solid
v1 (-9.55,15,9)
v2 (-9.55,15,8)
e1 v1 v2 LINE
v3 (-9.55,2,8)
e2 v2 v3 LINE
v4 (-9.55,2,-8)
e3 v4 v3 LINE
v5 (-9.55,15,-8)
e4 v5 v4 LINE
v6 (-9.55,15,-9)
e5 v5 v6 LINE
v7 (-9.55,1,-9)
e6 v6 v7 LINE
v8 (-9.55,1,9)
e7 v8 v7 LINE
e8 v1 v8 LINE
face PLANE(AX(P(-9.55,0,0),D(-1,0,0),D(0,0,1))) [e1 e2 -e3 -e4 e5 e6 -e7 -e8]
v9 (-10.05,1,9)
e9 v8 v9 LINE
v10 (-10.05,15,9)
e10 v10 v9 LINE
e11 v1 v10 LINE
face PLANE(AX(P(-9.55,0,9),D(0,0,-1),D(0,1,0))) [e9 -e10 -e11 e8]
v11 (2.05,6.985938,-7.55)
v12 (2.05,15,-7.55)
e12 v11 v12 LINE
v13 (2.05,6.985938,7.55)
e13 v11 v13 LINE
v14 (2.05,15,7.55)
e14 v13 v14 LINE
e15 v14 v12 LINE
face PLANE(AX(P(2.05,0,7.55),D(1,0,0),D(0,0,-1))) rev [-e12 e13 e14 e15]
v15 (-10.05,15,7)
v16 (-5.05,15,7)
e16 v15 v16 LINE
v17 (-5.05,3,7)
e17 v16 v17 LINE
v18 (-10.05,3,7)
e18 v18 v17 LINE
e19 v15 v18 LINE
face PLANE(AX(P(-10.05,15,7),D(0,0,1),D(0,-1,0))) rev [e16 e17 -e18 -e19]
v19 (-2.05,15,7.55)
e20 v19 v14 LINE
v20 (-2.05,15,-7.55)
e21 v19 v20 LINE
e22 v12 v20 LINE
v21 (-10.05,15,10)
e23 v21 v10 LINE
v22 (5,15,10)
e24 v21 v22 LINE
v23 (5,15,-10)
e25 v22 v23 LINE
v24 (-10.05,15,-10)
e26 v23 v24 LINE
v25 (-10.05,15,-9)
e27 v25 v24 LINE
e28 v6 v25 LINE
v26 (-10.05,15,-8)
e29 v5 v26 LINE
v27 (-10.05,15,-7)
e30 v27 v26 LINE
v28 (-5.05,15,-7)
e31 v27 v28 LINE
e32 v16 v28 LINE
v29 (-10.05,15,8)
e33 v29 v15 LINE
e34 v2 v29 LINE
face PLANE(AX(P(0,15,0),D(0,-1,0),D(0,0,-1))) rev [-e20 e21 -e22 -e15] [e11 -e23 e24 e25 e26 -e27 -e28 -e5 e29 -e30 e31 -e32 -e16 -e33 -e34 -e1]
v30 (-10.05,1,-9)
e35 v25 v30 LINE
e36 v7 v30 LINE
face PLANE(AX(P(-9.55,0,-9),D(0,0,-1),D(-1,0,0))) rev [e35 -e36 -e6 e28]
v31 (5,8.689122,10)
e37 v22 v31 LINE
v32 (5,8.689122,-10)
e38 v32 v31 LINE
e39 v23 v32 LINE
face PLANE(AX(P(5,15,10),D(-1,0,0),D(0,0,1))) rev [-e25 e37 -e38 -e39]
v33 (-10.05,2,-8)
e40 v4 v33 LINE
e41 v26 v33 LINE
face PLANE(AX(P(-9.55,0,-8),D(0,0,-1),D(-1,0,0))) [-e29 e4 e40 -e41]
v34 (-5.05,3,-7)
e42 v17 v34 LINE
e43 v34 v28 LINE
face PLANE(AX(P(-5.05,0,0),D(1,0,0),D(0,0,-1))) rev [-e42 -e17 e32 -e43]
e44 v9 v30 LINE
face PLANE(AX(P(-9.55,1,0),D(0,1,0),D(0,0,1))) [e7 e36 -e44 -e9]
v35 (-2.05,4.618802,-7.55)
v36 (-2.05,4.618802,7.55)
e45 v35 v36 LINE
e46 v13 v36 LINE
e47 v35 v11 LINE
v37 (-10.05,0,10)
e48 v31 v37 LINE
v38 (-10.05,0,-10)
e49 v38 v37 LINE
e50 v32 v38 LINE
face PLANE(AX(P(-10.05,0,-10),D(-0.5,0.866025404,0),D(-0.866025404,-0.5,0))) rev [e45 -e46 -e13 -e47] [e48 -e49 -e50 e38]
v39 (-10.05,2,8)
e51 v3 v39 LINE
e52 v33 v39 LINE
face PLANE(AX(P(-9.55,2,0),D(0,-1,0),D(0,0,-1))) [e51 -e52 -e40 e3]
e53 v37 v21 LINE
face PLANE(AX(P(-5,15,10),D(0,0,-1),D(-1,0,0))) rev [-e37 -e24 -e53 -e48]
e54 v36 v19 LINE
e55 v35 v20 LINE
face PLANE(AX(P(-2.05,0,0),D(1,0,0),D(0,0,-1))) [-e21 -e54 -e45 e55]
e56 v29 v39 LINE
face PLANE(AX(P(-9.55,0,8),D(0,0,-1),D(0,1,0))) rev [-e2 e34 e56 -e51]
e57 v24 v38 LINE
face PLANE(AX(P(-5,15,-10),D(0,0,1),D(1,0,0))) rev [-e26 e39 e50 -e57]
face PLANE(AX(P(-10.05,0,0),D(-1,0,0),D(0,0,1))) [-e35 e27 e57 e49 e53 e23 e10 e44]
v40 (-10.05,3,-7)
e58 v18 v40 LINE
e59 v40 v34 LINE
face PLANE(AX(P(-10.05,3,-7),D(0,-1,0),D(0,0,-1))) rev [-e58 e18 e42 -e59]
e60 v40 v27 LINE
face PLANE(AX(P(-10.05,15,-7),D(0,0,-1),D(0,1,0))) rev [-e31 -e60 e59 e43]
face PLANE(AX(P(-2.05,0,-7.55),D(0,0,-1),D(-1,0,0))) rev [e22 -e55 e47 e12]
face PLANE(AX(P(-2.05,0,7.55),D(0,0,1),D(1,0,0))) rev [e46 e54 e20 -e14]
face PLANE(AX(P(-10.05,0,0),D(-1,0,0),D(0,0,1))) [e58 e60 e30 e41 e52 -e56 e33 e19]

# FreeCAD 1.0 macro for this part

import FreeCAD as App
import Part
import Sketcher

V = App.Vector
Q = App.Units.Quantity

doc = App.newDocument("Part")
params = doc.addObject("Spreadsheet::Sheet", "Params")
for row, (alias, value) in enumerate([
    ("sketch1_width", "10 mm"),
    ("sketch1_height", "20 mm"),
    ("pad1_length", "15 mm"),
    ("sketch2_width", "4.1 mm"),
    ("sketch2_height", "15.1 mm"),
    ("sketch3_height", "20 mm"),
    ("sketch3_width", "2.95 mm"),
    ("pocket2_length", "15 mm"),
    ("sketch4_width", "15 mm"),
    ("sketch4_height", "20 mm"),
    ("pad2_length", "3 mm"),
    ("sketch5_width", "15 mm"),
    ("sketch5_width2", "12 mm"),
    ("sketch5_height", "3 mm"),
    ("sketch5_height2", "20 mm"),
    ("pad3_length", "5 mm"),
    ("sketch6_width", "15.05 mm"),
    ("sketch7_width", "13 mm"),
    ("sketch7_width2", "14 mm"),
    ("sketch7_height", "1 mm"),
    ("sketch7_height2", "18 mm"),
    ("pocket4_length", "0.5 mm"),
], start=1):
    params.set(f"A{row}", alias)
    params.set(f"B{row}", "=" + value)
    params.setAlias(f"B{row}", alias)

body = doc.addObject("PartDesign::Body", "Body")

# Sketch on XZ plane
sketch1 = body.newObject("Sketcher::SketchObject", "Sketch")
sketch1.AttachmentSupport = (doc.getObject("XZ_Plane"), [""])
sketch1.MapMode = "FlatFace"
sketch1.addGeometry(Part.LineSegment(V(-5, -10, 0), V(-5, 10, 0)), False)
sketch1.addGeometry(Part.LineSegment(V(-5, 10, 0), V(5, 10, 0)), False)
sketch1.addGeometry(Part.LineSegment(V(5, 10, 0), V(5, -10, 0)), False)
sketch1.addGeometry(Part.LineSegment(V(5, -10, 0), V(-5, -10, 0)), False)
sketch1.addConstraint(Sketcher.Constraint("Coincident", 0, 2, 1, 1))
sketch1.addConstraint(Sketcher.Constraint("Coincident", 1, 2, 2, 1))
sketch1.addConstraint(Sketcher.Constraint("Coincident", 2, 2, 3, 1))
sketch1.addConstraint(Sketcher.Constraint("Coincident", 3, 2, 0, 1))
sketch1.addConstraint(Sketcher.Constraint("Vertical", 0))
sketch1.addConstraint(Sketcher.Constraint("Horizontal", 1))
sketch1.addConstraint(Sketcher.Constraint("Vertical", 2))
sketch1.addConstraint(Sketcher.Constraint("Horizontal", 3))
sketch1.addConstraint(Sketcher.Constraint("Symmetric", 0, 2, 2, 2, -1, 1))
sketch1.addConstraint(Sketcher.Constraint("DistanceX", 1, 1, 1, 2, 10.0))
sketch1.addConstraint(Sketcher.Constraint("DistanceY", 0, 1, 0, 2, 20.0))
sketch1.setExpression("Constraints[9]", "Params.sketch1_width")
sketch1.setExpression("Constraints[10]", "Params.sketch1_height")
pad1 = body.newObject("PartDesign::Pad", "Pad")
pad1.Profile = sketch1
pad1.setExpression("Length", "Params.pad1_length")
pad1.Reversed = True

# Sketch on XZ plane
sketch2 = body.newObject("Sketcher::SketchObject", "Sketch001")
sketch2.AttachmentSupport = (doc.getObject("XZ_Plane"), [""])
sketch2.MapMode = "FlatFace"
sketch2.AttachmentOffset = App.Placement(V(0, 0, -15), App.Rotation())
sketch2.addGeometry(Part.LineSegment(V(-2, -7.5, 0), V(-2, 7.5, 0)), False)
sketch2.addGeometry(Part.LineSegment(V(-2, 7.5, 0), V(2, 7.5, 0)), False)
sketch2.addGeometry(Part.LineSegment(V(2, 7.5, 0), V(2, -7.5, 0)), False)
sketch2.addGeometry(Part.LineSegment(V(2, -7.5, 0), V(-2, -7.5, 0)), False)
sketch2.addConstraint(Sketcher.Constraint("Coincident", 0, 2, 1, 1))
sketch2.addConstraint(Sketcher.Constraint("Coincident", 1, 2, 2, 1))
sketch2.addConstraint(Sketcher.Constraint("Coincident", 2, 2, 3, 1))
sketch2.addConstraint(Sketcher.Constraint("Coincident", 3, 2, 0, 1))
sketch2.addConstraint(Sketcher.Constraint("Vertical", 0))
sketch2.addConstraint(Sketcher.Constraint("Horizontal", 1))
sketch2.addConstraint(Sketcher.Constraint("Vertical", 2))
sketch2.addConstraint(Sketcher.Constraint("Horizontal", 3))
sketch2.addConstraint(Sketcher.Constraint("Symmetric", 0, 2, 2, 2, -1, 1))
sketch2.addConstraint(Sketcher.Constraint("DistanceX", 1, 1, 1, 2, 4.1))
sketch2.addConstraint(Sketcher.Constraint("DistanceY", 0, 1, 0, 2, 15.1))
sketch2.setExpression("Constraints[9]", "Params.sketch2_width")
sketch2.setExpression("Constraints[10]", "Params.sketch2_height")
pocket1 = body.newObject("PartDesign::Pocket", "Pocket")
pocket1.Profile = sketch2
pocket1.Type = "ThroughAll"
pocket1.Reversed = True

# Sketch on XZ plane
sketch3 = body.newObject("Sketcher::SketchObject", "Sketch002")
sketch3.AttachmentSupport = (doc.getObject("XZ_Plane"), [""])
sketch3.MapMode = "FlatFace"
sketch3.AttachmentOffset = App.Placement(V(0, 0, -15), App.Rotation())
sketch3.addGeometry(Part.LineSegment(V(-2, -10, 0), V(-5, -10, 0)), False)
sketch3.addGeometry(Part.LineSegment(V(-5, -10, 0), V(-5, 10, 0)), False)
sketch3.addGeometry(Part.LineSegment(V(-5, 10, 0), V(-2, 10, 0)), False)
sketch3.addGeometry(Part.LineSegment(V(-2, 10, 0), V(-2, -10, 0)), False)
sketch3.addConstraint(Sketcher.Constraint("Coincident", 0, 2, 1, 1))
sketch3.addConstraint(Sketcher.Constraint("Coincident", 1, 2, 2, 1))
sketch3.addConstraint(Sketcher.Constraint("Coincident", 2, 2, 3, 1))
sketch3.addConstraint(Sketcher.Constraint("Coincident", 3, 2, 0, 1))
sketch3.addConstraint(Sketcher.Constraint("Horizontal", 0))
sketch3.addConstraint(Sketcher.Constraint("Vertical", 1))
sketch3.addConstraint(Sketcher.Constraint("Horizontal", 2))
sketch3.addConstraint(Sketcher.Constraint("Vertical", 3))
sketch3.addConstraint(Sketcher.Constraint("DistanceY", 1, 1, 1, 2, 20.0))
sketch3.addConstraint(Sketcher.Constraint("DistanceX", 0, 2, -1, 1, 5.0))
sketch3.addConstraint(Sketcher.Constraint("DistanceY", 0, 2, -1, 1, 10.0))
sketch3.addConstraint(Sketcher.Constraint("DistanceX", 0, 2, 0, 1, 2.95))
sketch3.setExpression("Constraints[8]", "Params.sketch3_height")
sketch3.setExpression("Constraints[11]", "Params.sketch3_width")
pocket2 = body.newObject("PartDesign::Pocket", "Pocket001")
pocket2.Profile = sketch3
pocket2.setExpression("Length", "Params.pocket2_length")
pocket2.Reversed = True

# Sketch on YZ plane
sketch4 = body.newObject("Sketcher::SketchObject", "Sketch003")
sketch4.AttachmentSupport = (doc.getObject("YZ_Plane"), [""])
sketch4.MapMode = "FlatFace"
sketch4.AttachmentOffset = App.Placement(V(0, 0, -2.05), App.Rotation())
sketch4.addGeometry(Part.LineSegment(V(15, -10, 0), V(0, -10, 0)), False)
sketch4.addGeometry(Part.LineSegment(V(0, -10, 0), V(0, 10, 0)), False)
sketch4.addGeometry(Part.LineSegment(V(0, 10, 0), V(15, 10, 0)), False)
sketch4.addGeometry(Part.LineSegment(V(15, 10, 0), V(15, -10, 0)), False)
sketch4.addConstraint(Sketcher.Constraint("Coincident", 0, 2, 1, 1))
sketch4.addConstraint(Sketcher.Constraint("Coincident", 1, 2, 2, 1))
sketch4.addConstraint(Sketcher.Constraint("Coincident", 2, 2, 3, 1))
sketch4.addConstraint(Sketcher.Constraint("Coincident", 3, 2, 0, 1))
sketch4.addConstraint(Sketcher.Constraint("Horizontal", 0))
sketch4.addConstraint(Sketcher.Constraint("Vertical", 1))
sketch4.addConstraint(Sketcher.Constraint("Horizontal", 2))
sketch4.addConstraint(Sketcher.Constraint("Vertical", 3))
sketch4.addConstraint(Sketcher.Constraint("Symmetric", 0, 2, 1, 2, -1, 1))
sketch4.addConstraint(Sketcher.Constraint("DistanceX", 0, 2, 0, 1, 15.0))
sketch4.addConstraint(Sketcher.Constraint("DistanceY", 1, 1, 1, 2, 20.0))
sketch4.setExpression("Constraints[9]", "Params.sketch4_width")
sketch4.setExpression("Constraints[10]", "Params.sketch4_height")
pad2 = body.newObject("PartDesign::Pad", "Pad001")
pad2.Profile = sketch4
pad2.setExpression("Length", "Params.pad2_length")
pad2.Reversed = True

# Sketch on YZ plane
sketch5 = body.newObject("Sketcher::SketchObject", "Sketch004")
sketch5.AttachmentSupport = (doc.getObject("YZ_Plane"), [""])
sketch5.MapMode = "FlatFace"
sketch5.AttachmentOffset = App.Placement(V(0, 0, -5.05), App.Rotation())
sketch5.addGeometry(Part.LineSegment(V(15, -7, 0), V(15, -10, 0)), False)
sketch5.addGeometry(Part.LineSegment(V(15, -10, 0), V(0, -10, 0)), False)
sketch5.addGeometry(Part.LineSegment(V(0, -10, 0), V(0, 10, 0)), False)
sketch5.addGeometry(Part.LineSegment(V(0, 10, 0), V(15, 10, 0)), False)
sketch5.addGeometry(Part.LineSegment(V(15, 10, 0), V(15, 7, 0)), False)
sketch5.addGeometry(Part.LineSegment(V(15, 7, 0), V(3, 7, 0)), False)
sketch5.addGeometry(Part.LineSegment(V(3, 7, 0), V(3, -7, 0)), False)
sketch5.addGeometry(Part.LineSegment(V(3, -7, 0), V(15, -7, 0)), False)
sketch5.addConstraint(Sketcher.Constraint("Coincident", 0, 2, 1, 1))
sketch5.addConstraint(Sketcher.Constraint("Coincident", 1, 2, 2, 1))
sketch5.addConstraint(Sketcher.Constraint("Coincident", 2, 2, 3, 1))
sketch5.addConstraint(Sketcher.Constraint("Coincident", 3, 2, 4, 1))
sketch5.addConstraint(Sketcher.Constraint("Coincident", 4, 2, 5, 1))
sketch5.addConstraint(Sketcher.Constraint("Coincident", 5, 2, 6, 1))
sketch5.addConstraint(Sketcher.Constraint("Coincident", 6, 2, 7, 1))
sketch5.addConstraint(Sketcher.Constraint("Coincident", 7, 2, 0, 1))
sketch5.addConstraint(Sketcher.Constraint("Vertical", 0))
sketch5.addConstraint(Sketcher.Constraint("Horizontal", 1))
sketch5.addConstraint(Sketcher.Constraint("Vertical", 2))
sketch5.addConstraint(Sketcher.Constraint("Horizontal", 3))
sketch5.addConstraint(Sketcher.Constraint("Vertical", 4))
sketch5.addConstraint(Sketcher.Constraint("Horizontal", 5))
sketch5.addConstraint(Sketcher.Constraint("Vertical", 6))
sketch5.addConstraint(Sketcher.Constraint("Horizontal", 7))
sketch5.addConstraint(Sketcher.Constraint("Symmetric", 1, 2, 2, 2, -1, 1))
sketch5.addConstraint(Sketcher.Constraint("Symmetric", 4, 2, 7, 2, -1))
sketch5.addConstraint(Sketcher.Constraint("DistanceX", 1, 2, 1, 1, 15.0))
sketch5.addConstraint(Sketcher.Constraint("DistanceX", 5, 2, 5, 1, 12.0))
sketch5.addConstraint(Sketcher.Constraint("DistanceY", 0, 2, 0, 1, 3.0))
sketch5.addConstraint(Sketcher.Constraint("DistanceY", 2, 1, 2, 2, 20.0))
sketch5.setExpression("Constraints[18]", "Params.sketch5_width")
sketch5.setExpression("Constraints[19]", "Params.sketch5_width2")
sketch5.setExpression("Constraints[20]", "Params.sketch5_height")
sketch5.setExpression("Constraints[21]", "Params.sketch5_height2")
pad3 = body.newObject("PartDesign::Pad", "Pad002")
pad3.Profile = sketch5
pad3.setExpression("Length", "Params.pad3_length")
pad3.Reversed = True

# Sketch on XY plane
sketch6 = body.newObject("Sketcher::SketchObject", "Sketch005")
sketch6.AttachmentSupport = (doc.getObject("XY_Plane"), [""])
sketch6.MapMode = "FlatFace"
sketch6.AttachmentOffset = App.Placement(V(0, 0, 10), App.Rotation())
sketch6.addGeometry(Part.LineSegment(V(5, 9, 0), V(-10, 0, 0)), False)
sketch6.addGeometry(Part.LineSegment(V(-10, 0, 0), V(5, 0, 0)), False)
sketch6.addGeometry(Part.LineSegment(V(5, 0, 0), V(5, 9, 0)), False)
sketch6.addConstraint(Sketcher.Constraint("Coincident", 0, 2, 1, 1))
sketch6.addConstraint(Sketcher.Constraint("Coincident", 1, 2, 2, 1))
sketch6.addConstraint(Sketcher.Constraint("Coincident", 2, 2, 0, 1))
sketch6.addConstraint(Sketcher.Constraint("Horizontal", 1))
sketch6.addConstraint(Sketcher.Constraint("Vertical", 2))
sketch6.addConstraint(Sketcher.Constraint("PointOnObject", 0, 2, -1))
sketch6.addConstraint(Sketcher.Constraint("Angle", 0, Q("-150 deg")))
sketch6.addConstraint(Sketcher.Constraint("DistanceX", -1, 1, 1, 2, 5.0))
sketch6.addConstraint(Sketcher.Constraint("DistanceX", 1, 1, 1, 2, 15.05))
sketch6.setExpression("Constraints[8]", "Params.sketch6_width")
pocket3 = body.newObject("PartDesign::Pocket", "Pocket002")
pocket3.Profile = sketch6
pocket3.Type = "ThroughAll"

# Sketch on YZ plane
sketch7 = body.newObject("Sketcher::SketchObject", "Sketch006")
sketch7.AttachmentSupport = (doc.getObject("YZ_Plane"), [""])
sketch7.MapMode = "FlatFace"
sketch7.AttachmentOffset = App.Placement(V(0, 0, -10.05), App.Rotation())
sketch7.addGeometry(Part.LineSegment(V(2, -8, 0), V(15, -8, 0)), False)
sketch7.addGeometry(Part.LineSegment(V(15, -8, 0), V(15, -9, 0)), False)
sketch7.addGeometry(Part.LineSegment(V(15, -9, 0), V(1, -9, 0)), False)
sketch7.addGeometry(Part.LineSegment(V(1, -9, 0), V(1, 9, 0)), False)
sketch7.addGeometry(Part.LineSegment(V(1, 9, 0), V(15, 9, 0)), False)
sketch7.addGeometry(Part.LineSegment(V(15, 9, 0), V(15, 8, 0)), False)
sketch7.addGeometry(Part.LineSegment(V(15, 8, 0), V(2, 8, 0)), False)
sketch7.addGeometry(Part.LineSegment(V(2, 8, 0), V(2, -8, 0)), False)
sketch7.addConstraint(Sketcher.Constraint("Coincident", 0, 2, 1, 1))
sketch7.addConstraint(Sketcher.Constraint("Coincident", 1, 2, 2, 1))
sketch7.addConstraint(Sketcher.Constraint("Coincident", 2, 2, 3, 1))
sketch7.addConstraint(Sketcher.Constraint("Coincident", 3, 2, 4, 1))
sketch7.addConstraint(Sketcher.Constraint("Coincident", 4, 2, 5, 1))
sketch7.addConstraint(Sketcher.Constraint("Coincident", 5, 2, 6, 1))
sketch7.addConstraint(Sketcher.Constraint("Coincident", 6, 2, 7, 1))
sketch7.addConstraint(Sketcher.Constraint("Coincident", 7, 2, 0, 1))
sketch7.addConstraint(Sketcher.Constraint("Horizontal", 0))
sketch7.addConstraint(Sketcher.Constraint("Vertical", 1))
sketch7.addConstraint(Sketcher.Constraint("Horizontal", 2))
sketch7.addConstraint(Sketcher.Constraint("Vertical", 3))
sketch7.addConstraint(Sketcher.Constraint("Horizontal", 4))
sketch7.addConstraint(Sketcher.Constraint("Vertical", 5))
sketch7.addConstraint(Sketcher.Constraint("Horizontal", 6))
sketch7.addConstraint(Sketcher.Constraint("Vertical", 7))
sketch7.addConstraint(Sketcher.Constraint("Symmetric", 1, 2, 4, 2, -1))
sketch7.addConstraint(Sketcher.Constraint("Equal", 1, 5))
sketch7.addConstraint(Sketcher.Constraint("DistanceX", 0, 1, 0, 2, 13.0))
sketch7.addConstraint(Sketcher.Constraint("DistanceX", 2, 2, 2, 1, 14.0))
sketch7.addConstraint(Sketcher.Constraint("DistanceY", 1, 2, 1, 1, 1.0))
sketch7.addConstraint(Sketcher.Constraint("DistanceY", 3, 1, 3, 2, 18.0))
sketch7.addConstraint(Sketcher.Constraint("DistanceX", -1, 1, 0, 2, 15.0))
sketch7.setExpression("Constraints[18]", "Params.sketch7_width")
sketch7.setExpression("Constraints[19]", "Params.sketch7_width2")
sketch7.setExpression("Constraints[20]", "Params.sketch7_height")
sketch7.setExpression("Constraints[21]", "Params.sketch7_height2")
pocket4 = body.newObject("PartDesign::Pocket", "Pocket003")
pocket4.Profile = sketch7
pocket4.setExpression("Length", "Params.pocket4_length")
pocket4.Reversed = True

doc.recompute()
